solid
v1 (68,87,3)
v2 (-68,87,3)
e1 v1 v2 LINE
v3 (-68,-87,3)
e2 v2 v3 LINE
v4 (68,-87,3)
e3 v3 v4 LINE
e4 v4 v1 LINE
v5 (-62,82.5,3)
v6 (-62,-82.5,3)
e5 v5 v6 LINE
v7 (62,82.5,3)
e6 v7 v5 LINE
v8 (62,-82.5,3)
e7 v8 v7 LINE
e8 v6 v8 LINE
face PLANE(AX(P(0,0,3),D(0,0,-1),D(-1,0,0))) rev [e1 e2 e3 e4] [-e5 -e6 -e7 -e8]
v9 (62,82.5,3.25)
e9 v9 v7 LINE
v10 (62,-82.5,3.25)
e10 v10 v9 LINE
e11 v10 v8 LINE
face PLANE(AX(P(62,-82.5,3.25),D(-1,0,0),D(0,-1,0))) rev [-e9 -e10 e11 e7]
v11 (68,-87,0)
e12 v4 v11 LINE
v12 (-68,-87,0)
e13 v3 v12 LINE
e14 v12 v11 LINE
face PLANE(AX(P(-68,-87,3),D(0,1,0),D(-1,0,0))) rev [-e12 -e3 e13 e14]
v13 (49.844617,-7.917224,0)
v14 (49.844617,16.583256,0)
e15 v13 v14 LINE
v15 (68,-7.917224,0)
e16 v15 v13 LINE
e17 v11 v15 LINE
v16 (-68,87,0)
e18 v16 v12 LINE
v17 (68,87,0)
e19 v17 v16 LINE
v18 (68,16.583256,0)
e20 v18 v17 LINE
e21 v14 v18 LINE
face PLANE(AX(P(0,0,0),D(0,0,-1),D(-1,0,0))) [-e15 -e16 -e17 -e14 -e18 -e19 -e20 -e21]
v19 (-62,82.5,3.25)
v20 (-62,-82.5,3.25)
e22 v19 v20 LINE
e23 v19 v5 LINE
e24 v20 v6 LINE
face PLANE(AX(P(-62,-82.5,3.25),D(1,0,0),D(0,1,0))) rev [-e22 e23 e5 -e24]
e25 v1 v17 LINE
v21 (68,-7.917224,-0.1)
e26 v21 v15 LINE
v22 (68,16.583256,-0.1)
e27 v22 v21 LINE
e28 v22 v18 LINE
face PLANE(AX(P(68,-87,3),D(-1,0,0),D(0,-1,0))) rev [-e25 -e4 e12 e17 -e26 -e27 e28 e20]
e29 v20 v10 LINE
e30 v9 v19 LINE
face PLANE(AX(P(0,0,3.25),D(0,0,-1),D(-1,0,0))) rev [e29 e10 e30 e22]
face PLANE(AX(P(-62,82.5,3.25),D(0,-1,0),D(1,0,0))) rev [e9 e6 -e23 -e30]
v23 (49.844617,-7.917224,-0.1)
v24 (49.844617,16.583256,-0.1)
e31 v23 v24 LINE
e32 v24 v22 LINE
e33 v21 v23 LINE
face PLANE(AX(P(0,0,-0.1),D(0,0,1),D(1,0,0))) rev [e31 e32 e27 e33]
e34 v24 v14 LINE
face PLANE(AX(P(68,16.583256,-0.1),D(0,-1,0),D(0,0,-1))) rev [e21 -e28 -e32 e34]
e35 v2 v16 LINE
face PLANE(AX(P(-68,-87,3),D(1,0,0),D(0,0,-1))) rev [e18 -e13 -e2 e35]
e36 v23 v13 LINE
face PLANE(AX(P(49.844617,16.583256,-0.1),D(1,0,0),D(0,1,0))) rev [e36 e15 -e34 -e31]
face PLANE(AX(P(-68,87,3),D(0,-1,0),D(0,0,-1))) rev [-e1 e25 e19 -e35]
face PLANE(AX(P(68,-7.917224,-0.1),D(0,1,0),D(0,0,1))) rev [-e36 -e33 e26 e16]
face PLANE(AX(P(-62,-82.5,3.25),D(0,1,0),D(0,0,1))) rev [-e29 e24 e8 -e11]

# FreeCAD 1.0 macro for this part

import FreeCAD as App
import Part
import Sketcher
Q = App.Units.Quantity

doc = App.newDocument("Part")
params = doc.addObject("Spreadsheet::Sheet", "Params")
for row, (alias, value) in enumerate([
    ("sketch1_width", "136 mm"),
    ("sketch1_height", "174 mm"),
    ("pad1_length", "3 mm"),
    ("sketch2_width", "124 mm"),
    ("sketch2_height", "165 mm"),
    ("pad2_length", "0.25 mm"),
    ("pad3_length", "0.1 mm"),
], start=1):
    params.set(f"A{row}", alias)
    params.set(f"B{row}", "=" + value)
    params.setAlias(f"B{row}", alias)

body = doc.addObject("PartDesign::Body", "Body")

# Sketch on XY plane
sketch1 = doc.addObject("Sketcher::SketchObject", "Sketch")
body.addObject(sketch1)
sketch1.AttachmentSupport = (doc.XY_Plane, [""])
sketch1.MapMode = "FlatFace"
sketch1.addGeometry(Part.LineSegment(App.Vector(-68, 87, 0), App.Vector(-68, -87, 0)), False)
sketch1.addGeometry(Part.LineSegment(App.Vector(-68, -87, 0), App.Vector(68, -87, 0)), False)
sketch1.addGeometry(Part.LineSegment(App.Vector(68, -87, 0), App.Vector(68, 87, 0)), False)
sketch1.addGeometry(Part.LineSegment(App.Vector(68, 87, 0), App.Vector(-68, 87, 0)), False)
sketch1.addConstraint(Sketcher.Constraint("Coincident", 0, 2, 1, 1))
sketch1.addConstraint(Sketcher.Constraint("Coincident", 1, 2, 2, 1))
sketch1.addConstraint(Sketcher.Constraint("Coincident", 2, 2, 3, 1))
sketch1.addConstraint(Sketcher.Constraint("Coincident", 3, 2, 0, 1))
sketch1.addConstraint(Sketcher.Constraint("Vertical", 0))
sketch1.addConstraint(Sketcher.Constraint("Horizontal", 1))
sketch1.addConstraint(Sketcher.Constraint("Vertical", 2))
sketch1.addConstraint(Sketcher.Constraint("Horizontal", 3))
sketch1.addConstraint(Sketcher.Constraint("Symmetric", 0, 2, 2, 2, -1, 1))
sketch1.addConstraint(Sketcher.Constraint("DistanceX", 1, 1, 1, 2, Q("136 mm")))
sketch1.addConstraint(Sketcher.Constraint("DistanceY", 0, 2, 0, 1, Q("174 mm")))
sketch1.setExpression("Constraints[9]", "Params.sketch1_width")
sketch1.setExpression("Constraints[10]", "Params.sketch1_height")
pad1 = doc.addObject("PartDesign::Pad", "Pad")
body.addObject(pad1)
pad1.Profile = sketch1
pad1.setExpression("Length", "Params.pad1_length")

# Sketch on XY plane
sketch2 = doc.addObject("Sketcher::SketchObject", "Sketch001")
body.addObject(sketch2)
sketch2.AttachmentSupport = (doc.XY_Plane, [""])
sketch2.MapMode = "FlatFace"
sketch2.AttachmentOffset = App.Placement(App.Vector(0, 0, 3), App.Rotation())
sketch2.addGeometry(Part.LineSegment(App.Vector(-62, 82, 0), App.Vector(-62, -82, 0)), False)
sketch2.addGeometry(Part.LineSegment(App.Vector(-62, -82, 0), App.Vector(62, -82, 0)), False)
sketch2.addGeometry(Part.LineSegment(App.Vector(62, -82, 0), App.Vector(62, 82, 0)), False)
sketch2.addGeometry(Part.LineSegment(App.Vector(62, 82, 0), App.Vector(-62, 82, 0)), False)
sketch2.addConstraint(Sketcher.Constraint("Coincident", 0, 2, 1, 1))
sketch2.addConstraint(Sketcher.Constraint("Coincident", 1, 2, 2, 1))
sketch2.addConstraint(Sketcher.Constraint("Coincident", 2, 2, 3, 1))
sketch2.addConstraint(Sketcher.Constraint("Coincident", 3, 2, 0, 1))
sketch2.addConstraint(Sketcher.Constraint("Vertical", 0))
sketch2.addConstraint(Sketcher.Constraint("Horizontal", 1))
sketch2.addConstraint(Sketcher.Constraint("Vertical", 2))
sketch2.addConstraint(Sketcher.Constraint("Horizontal", 3))
sketch2.addConstraint(Sketcher.Constraint("Symmetric", 0, 2, 2, 2, -1, 1))
sketch2.addConstraint(Sketcher.Constraint("DistanceX", 1, 1, 1, 2, Q("124 mm")))
sketch2.addConstraint(Sketcher.Constraint("DistanceY", 0, 2, 0, 1, Q("165 mm")))
sketch2.setExpression("Constraints[9]", "Params.sketch2_width")
sketch2.setExpression("Constraints[10]", "Params.sketch2_height")
pad2 = doc.addObject("PartDesign::Pad", "Pad001")
body.addObject(pad2)
pad2.Profile = sketch2
pad2.setExpression("Length", "Params.pad2_length")

# Sketch on XY plane
sketch3 = doc.addObject("Sketcher::SketchObject", "Sketch002")
body.addObject(sketch3)
sketch3.AttachmentSupport = (doc.XY_Plane, [""])
sketch3.MapMode = "FlatFace"
sketch3.addGeometry(Part.LineSegment(App.Vector(68, 17, 0), App.Vector(68, -8, 0)), False)
sketch3.addGeometry(Part.LineSegment(App.Vector(68, -8, 0), App.Vector(50, -8, 0)), False)
sketch3.addGeometry(Part.LineSegment(App.Vector(50, -8, 0), App.Vector(50, 17, 0)), False)
sketch3.addGeometry(Part.LineSegment(App.Vector(50, 17, 0), App.Vector(68, 17, 0)), False)
sketch3.addConstraint(Sketcher.Constraint("Coincident", 0, 2, 1, 1))
sketch3.addConstraint(Sketcher.Constraint("Coincident", 1, 2, 2, 1))
sketch3.addConstraint(Sketcher.Constraint("Coincident", 2, 2, 3, 1))
sketch3.addConstraint(Sketcher.Constraint("Coincident", 3, 2, 0, 1))
sketch3.addConstraint(Sketcher.Constraint("Vertical", 0))
sketch3.addConstraint(Sketcher.Constraint("Horizontal", 1))
sketch3.addConstraint(Sketcher.Constraint("Vertical", 2))
sketch3.addConstraint(Sketcher.Constraint("Horizontal", 3))
sketch3.addConstraint(Sketcher.Constraint("DistanceX", -1, 1, 0, 2, Q("68 mm")))
sketch3.addConstraint(Sketcher.Constraint("DistanceY", 0, 2, 0, 1, Q("24.50048 mm")))
sketch3.addConstraint(Sketcher.Constraint("DistanceX", 1, 2, 1, 1, Q("18.155383 mm")))
sketch3.addConstraint(Sketcher.Constraint("DistanceY", 0, 2, -1, 1, Q("7.917224 mm")))
pad3 = doc.addObject("PartDesign::Pad", "Pad002")
body.addObject(pad3)
pad3.Profile = sketch3
pad3.setExpression("Length", "Params.pad3_length")
pad3.Reversed = True

doc.recompute()
